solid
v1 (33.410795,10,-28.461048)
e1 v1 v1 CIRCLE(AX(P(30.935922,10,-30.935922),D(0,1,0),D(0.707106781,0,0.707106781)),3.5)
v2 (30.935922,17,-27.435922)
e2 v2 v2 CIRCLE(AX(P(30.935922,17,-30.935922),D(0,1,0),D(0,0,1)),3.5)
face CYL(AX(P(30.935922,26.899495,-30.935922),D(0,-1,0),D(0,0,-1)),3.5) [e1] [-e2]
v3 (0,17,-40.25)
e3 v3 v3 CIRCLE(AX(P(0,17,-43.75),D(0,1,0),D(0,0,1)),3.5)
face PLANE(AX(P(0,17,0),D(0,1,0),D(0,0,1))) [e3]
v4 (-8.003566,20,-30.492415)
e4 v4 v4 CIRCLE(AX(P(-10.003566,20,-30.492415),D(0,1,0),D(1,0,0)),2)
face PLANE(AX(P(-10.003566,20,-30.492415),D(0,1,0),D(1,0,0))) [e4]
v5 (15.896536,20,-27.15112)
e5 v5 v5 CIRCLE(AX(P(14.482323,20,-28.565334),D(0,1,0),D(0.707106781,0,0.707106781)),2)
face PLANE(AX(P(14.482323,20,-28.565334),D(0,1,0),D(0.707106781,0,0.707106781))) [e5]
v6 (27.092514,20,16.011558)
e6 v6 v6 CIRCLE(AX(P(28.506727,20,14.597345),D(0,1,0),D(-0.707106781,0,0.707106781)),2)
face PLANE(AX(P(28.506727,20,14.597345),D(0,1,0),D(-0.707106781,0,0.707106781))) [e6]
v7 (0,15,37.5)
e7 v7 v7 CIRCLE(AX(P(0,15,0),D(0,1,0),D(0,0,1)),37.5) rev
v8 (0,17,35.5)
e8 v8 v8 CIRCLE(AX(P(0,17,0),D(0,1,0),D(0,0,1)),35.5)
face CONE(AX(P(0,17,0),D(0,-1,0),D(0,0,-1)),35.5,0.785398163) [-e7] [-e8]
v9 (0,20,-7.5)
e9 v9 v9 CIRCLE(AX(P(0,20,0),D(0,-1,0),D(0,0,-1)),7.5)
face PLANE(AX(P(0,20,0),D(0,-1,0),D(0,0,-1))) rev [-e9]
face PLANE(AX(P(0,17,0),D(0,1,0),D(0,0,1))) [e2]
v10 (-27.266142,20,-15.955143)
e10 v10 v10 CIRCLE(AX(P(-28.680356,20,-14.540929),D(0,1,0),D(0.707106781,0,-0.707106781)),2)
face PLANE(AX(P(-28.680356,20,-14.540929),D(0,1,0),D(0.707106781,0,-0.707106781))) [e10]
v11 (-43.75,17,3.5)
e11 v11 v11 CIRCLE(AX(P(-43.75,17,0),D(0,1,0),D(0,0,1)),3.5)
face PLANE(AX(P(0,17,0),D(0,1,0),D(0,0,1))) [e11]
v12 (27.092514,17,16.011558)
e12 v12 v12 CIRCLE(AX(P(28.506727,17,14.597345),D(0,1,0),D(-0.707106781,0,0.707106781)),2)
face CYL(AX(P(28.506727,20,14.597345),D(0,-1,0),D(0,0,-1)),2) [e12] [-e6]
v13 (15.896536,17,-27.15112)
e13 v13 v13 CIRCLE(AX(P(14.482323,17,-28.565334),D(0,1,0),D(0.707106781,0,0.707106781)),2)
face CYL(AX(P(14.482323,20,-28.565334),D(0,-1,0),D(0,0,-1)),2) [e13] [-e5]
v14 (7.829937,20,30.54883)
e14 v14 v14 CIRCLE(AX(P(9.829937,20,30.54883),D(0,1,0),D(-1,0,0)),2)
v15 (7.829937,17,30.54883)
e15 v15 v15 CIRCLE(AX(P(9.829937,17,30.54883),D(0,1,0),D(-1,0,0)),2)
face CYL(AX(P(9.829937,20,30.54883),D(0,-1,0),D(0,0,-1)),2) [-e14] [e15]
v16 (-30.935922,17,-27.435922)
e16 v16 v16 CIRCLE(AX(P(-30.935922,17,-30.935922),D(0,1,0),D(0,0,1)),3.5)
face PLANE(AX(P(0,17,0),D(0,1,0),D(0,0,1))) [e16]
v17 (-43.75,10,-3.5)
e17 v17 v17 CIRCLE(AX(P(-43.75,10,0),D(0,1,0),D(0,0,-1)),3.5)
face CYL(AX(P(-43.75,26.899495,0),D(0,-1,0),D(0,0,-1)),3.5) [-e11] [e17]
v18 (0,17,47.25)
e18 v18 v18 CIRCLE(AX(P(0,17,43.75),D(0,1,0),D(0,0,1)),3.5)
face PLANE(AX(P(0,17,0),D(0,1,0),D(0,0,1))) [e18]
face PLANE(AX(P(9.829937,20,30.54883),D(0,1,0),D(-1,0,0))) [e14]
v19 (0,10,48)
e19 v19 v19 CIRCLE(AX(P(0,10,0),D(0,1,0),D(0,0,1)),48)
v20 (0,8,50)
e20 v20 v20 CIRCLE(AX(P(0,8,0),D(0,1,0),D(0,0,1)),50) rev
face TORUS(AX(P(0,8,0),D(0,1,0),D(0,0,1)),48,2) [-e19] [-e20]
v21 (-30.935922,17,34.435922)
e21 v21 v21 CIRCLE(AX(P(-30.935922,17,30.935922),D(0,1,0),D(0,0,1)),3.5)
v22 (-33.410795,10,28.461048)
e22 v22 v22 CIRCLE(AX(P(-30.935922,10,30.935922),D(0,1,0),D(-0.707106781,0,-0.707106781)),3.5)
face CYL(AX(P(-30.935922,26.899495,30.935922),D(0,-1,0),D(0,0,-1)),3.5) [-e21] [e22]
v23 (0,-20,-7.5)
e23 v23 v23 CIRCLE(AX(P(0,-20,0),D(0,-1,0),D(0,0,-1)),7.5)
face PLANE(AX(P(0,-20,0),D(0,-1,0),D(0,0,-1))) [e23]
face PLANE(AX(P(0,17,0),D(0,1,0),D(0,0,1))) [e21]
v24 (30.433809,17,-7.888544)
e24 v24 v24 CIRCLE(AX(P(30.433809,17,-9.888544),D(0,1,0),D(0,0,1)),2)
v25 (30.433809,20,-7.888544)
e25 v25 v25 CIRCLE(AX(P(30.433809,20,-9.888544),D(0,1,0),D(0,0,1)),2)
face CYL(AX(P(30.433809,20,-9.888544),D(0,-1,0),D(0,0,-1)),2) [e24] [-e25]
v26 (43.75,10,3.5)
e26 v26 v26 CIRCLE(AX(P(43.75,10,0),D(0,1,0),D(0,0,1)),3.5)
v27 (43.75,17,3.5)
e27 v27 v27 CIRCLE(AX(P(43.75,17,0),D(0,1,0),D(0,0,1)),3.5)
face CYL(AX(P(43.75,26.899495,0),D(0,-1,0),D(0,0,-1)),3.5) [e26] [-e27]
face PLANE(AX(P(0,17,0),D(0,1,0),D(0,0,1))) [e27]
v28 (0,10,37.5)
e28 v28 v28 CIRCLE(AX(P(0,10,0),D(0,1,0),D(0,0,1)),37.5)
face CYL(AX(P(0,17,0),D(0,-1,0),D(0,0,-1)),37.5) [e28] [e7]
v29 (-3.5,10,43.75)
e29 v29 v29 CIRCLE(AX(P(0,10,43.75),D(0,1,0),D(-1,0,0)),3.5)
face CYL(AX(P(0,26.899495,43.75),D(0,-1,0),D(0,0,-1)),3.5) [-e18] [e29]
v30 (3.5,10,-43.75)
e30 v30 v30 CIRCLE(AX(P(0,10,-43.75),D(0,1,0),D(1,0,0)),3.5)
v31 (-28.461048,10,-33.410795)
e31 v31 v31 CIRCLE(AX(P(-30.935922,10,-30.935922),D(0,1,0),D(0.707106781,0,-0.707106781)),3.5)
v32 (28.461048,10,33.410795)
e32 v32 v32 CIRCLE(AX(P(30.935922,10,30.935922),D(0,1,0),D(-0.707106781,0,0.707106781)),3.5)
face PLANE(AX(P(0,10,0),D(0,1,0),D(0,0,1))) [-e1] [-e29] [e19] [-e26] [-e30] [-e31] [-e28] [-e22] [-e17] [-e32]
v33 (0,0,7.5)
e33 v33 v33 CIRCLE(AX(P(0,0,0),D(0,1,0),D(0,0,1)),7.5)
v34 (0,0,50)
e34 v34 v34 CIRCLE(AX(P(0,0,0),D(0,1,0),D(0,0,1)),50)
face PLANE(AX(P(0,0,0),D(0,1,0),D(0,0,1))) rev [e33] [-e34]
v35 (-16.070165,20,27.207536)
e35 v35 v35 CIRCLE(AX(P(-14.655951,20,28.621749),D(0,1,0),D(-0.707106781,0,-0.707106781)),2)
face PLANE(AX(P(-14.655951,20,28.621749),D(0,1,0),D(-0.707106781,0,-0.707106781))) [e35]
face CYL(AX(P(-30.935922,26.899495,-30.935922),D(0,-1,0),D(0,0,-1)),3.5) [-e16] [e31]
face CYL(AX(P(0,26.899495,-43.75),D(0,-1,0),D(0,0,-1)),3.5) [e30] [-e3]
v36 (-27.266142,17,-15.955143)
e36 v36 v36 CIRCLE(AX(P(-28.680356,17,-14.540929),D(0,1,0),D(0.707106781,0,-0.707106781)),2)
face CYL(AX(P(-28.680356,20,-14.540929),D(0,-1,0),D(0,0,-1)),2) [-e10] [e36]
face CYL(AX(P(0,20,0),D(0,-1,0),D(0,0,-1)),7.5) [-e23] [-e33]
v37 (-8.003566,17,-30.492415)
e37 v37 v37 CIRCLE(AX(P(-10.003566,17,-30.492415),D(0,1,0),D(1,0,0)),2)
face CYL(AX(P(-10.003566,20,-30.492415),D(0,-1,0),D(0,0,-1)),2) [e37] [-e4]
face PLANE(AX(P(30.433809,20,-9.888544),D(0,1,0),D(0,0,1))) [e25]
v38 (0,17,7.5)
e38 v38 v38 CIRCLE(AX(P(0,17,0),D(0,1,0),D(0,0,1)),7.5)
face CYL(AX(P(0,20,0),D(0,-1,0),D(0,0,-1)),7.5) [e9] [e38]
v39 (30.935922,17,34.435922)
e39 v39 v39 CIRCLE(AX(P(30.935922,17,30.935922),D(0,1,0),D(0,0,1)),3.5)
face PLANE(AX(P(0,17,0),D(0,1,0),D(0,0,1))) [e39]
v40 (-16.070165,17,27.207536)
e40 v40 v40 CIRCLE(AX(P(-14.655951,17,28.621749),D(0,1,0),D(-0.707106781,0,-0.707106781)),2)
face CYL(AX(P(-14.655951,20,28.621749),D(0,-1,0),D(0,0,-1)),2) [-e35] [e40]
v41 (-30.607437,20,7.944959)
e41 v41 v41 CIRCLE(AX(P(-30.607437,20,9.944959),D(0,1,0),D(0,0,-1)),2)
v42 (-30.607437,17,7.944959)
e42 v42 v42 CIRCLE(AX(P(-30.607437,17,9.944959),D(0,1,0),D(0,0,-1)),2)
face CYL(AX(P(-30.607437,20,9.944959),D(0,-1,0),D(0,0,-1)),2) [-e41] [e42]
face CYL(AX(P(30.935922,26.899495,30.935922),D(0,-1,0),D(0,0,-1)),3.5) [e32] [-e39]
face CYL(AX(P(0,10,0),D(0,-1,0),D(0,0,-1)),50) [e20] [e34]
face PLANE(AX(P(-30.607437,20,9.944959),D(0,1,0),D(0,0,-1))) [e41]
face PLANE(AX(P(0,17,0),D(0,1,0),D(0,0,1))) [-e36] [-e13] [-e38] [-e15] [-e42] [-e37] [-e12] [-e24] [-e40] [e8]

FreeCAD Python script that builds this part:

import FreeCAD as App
import Part
import Sketcher

V = App.Vector


def edges_at(feature, points):
    """Names of the edges that pass closest to the given points."""
    edges = feature.Shape.Edges
    near = lambda p: min(range(len(edges)), key=lambda i: edges[i].distToShape(Part.Vertex(*p))[0])
    return sorted({f"Edge{near(p) + 1}" for p in points})

doc = App.newDocument("Part")
body = doc.addObject("PartDesign::Body", "Body")

# Sketch on XZ plane
sketch1 = body.newObject("Sketcher::SketchObject", "Sketch")
sketch1.AttachmentSupport = (doc.getObject("XZ_Plane"), [""])
sketch1.MapMode = "FlatFace"
sketch1.addGeometry(Part.Circle(V(0, 0, 0), V(0, 0, 1), 50), False)
sketch1.addConstraint([
    Sketcher.Constraint("Coincident", 0, 3, -1, 1),
    Sketcher.Constraint("Diameter", 0, 100.0),
])
pad1 = body.newObject("PartDesign::Pad", "Pad")
pad1.Profile = sketch1
pad1.Length = 10
pad1.Reversed = True

# Sketch on XZ plane
sketch2 = body.newObject("Sketcher::SketchObject", "Sketch001")
sketch2.AttachmentSupport = (doc.getObject("XZ_Plane"), [""])
sketch2.MapMode = "FlatFace"
sketch2.AttachmentOffset = App.Placement(V(0, 0, -10), App.Rotation())
sketch2.addGeometry(Part.Circle(V(0, 0, 0), V(0, 0, 1), 38), False)
sketch2.addConstraint([
    Sketcher.Constraint("Coincident", 0, 3, -1, 1),
    Sketcher.Constraint("Diameter", 0, 75.0),
])
pad2 = body.newObject("PartDesign::Pad", "Pad001")
pad2.Profile = sketch2
pad2.Length = 7
pad2.Reversed = True

# Sketch on XZ plane
sketch3 = body.newObject("Sketcher::SketchObject", "Sketch002")
sketch3.AttachmentSupport = (doc.getObject("XZ_Plane"), [""])
sketch3.MapMode = "FlatFace"
sketch3.AttachmentOffset = App.Placement(V(0, 0, -10), App.Rotation())
sketch3.addGeometry(Part.Circle(V(43.8, 0, 0), V(0, 0, 1), 3.5), False)
sketch3.addConstraint([
    Sketcher.Constraint("PointOnObject", 0, 3, -1),
    Sketcher.Constraint("Diameter", 0, 7.0),
    Sketcher.Constraint("DistanceX", -1, 1, 0, 3, 43.75),
])
pad3 = body.newObject("PartDesign::Pad", "Pad002")
pad3.Profile = sketch3
pad3.Length = 7
pad3.Reversed = True
doc.recompute()

polarpattern = body.newObject("PartDesign::PolarPattern", "PolarPattern")
polarpattern.Originals = [pad3]
polarpattern.Axis = (doc.getObject("Y_Axis"), [""])
polarpattern.Angle = 360
polarpattern.Occurrences = 8
body.Tip = polarpattern

# Sketch on XZ plane
sketch4 = body.newObject("Sketcher::SketchObject", "Sketch003")
sketch4.AttachmentSupport = (doc.getObject("XZ_Plane"), [""])
sketch4.MapMode = "FlatFace"
sketch4.AttachmentOffset = App.Placement(V(0, 0, -17), App.Rotation())
sketch4.addGeometry(Part.Circle(V(30.4, -9.9, 0), V(0, 0, 1), 2), False)
sketch4.addConstraint([
    Sketcher.Constraint("Diameter", 0, 4.0),
    Sketcher.Constraint("DistanceX", -1, 1, 0, 3, 30.433809),
    Sketcher.Constraint("DistanceY", 0, 3, -1, 1, 9.888544),
])
pad4 = body.newObject("PartDesign::Pad", "Pad003")
pad4.Profile = sketch4
pad4.Length = 3
pad4.Reversed = True
doc.recompute()

datumline = body.newObject("PartDesign::Line", "DatumLine")
datumline.Placement = App.Placement(V(-0.086814, 0, 0.028208), App.Rotation(V(0, 0, 1), V(0, 1, 0)))
polarpattern2 = body.newObject("PartDesign::PolarPattern", "PolarPattern001")
polarpattern2.Originals = [pad4]
polarpattern2.Axis = (datumline, [""])
polarpattern2.Angle = 360
polarpattern2.Occurrences = 8
body.Tip = polarpattern2
doc.recompute()

chamfer = body.newObject("PartDesign::Chamfer", "Chamfer")
chamfer.Base = (polarpattern2, edges_at(polarpattern2, [(0, 17, -37.5)]))
chamfer.Size = 2
doc.recompute()

fillet = body.newObject("PartDesign::Fillet", "Fillet")
fillet.Base = (chamfer, edges_at(chamfer, [(0, 10, -50)]))
fillet.Radius = 2

# Sketch on XZ plane
sketch5 = body.newObject("Sketcher::SketchObject", "Sketch004")
sketch5.AttachmentSupport = (doc.getObject("XZ_Plane"), [""])
sketch5.MapMode = "FlatFace"
sketch5.addGeometry(Part.Circle(V(0, 0, 0), V(0, 0, 1), 8), False)
sketch5.addConstraint([
    Sketcher.Constraint("Coincident", 0, 3, -1, 1),
    Sketcher.Constraint("Diameter", 0, 15.0),
])
pad5 = body.newObject("PartDesign::Pad", "Pad004")
pad5.Profile = sketch5
pad5.Type = "TwoLengths"
pad5.Length = 20
pad5.Length2 = 20

doc.recompute()
